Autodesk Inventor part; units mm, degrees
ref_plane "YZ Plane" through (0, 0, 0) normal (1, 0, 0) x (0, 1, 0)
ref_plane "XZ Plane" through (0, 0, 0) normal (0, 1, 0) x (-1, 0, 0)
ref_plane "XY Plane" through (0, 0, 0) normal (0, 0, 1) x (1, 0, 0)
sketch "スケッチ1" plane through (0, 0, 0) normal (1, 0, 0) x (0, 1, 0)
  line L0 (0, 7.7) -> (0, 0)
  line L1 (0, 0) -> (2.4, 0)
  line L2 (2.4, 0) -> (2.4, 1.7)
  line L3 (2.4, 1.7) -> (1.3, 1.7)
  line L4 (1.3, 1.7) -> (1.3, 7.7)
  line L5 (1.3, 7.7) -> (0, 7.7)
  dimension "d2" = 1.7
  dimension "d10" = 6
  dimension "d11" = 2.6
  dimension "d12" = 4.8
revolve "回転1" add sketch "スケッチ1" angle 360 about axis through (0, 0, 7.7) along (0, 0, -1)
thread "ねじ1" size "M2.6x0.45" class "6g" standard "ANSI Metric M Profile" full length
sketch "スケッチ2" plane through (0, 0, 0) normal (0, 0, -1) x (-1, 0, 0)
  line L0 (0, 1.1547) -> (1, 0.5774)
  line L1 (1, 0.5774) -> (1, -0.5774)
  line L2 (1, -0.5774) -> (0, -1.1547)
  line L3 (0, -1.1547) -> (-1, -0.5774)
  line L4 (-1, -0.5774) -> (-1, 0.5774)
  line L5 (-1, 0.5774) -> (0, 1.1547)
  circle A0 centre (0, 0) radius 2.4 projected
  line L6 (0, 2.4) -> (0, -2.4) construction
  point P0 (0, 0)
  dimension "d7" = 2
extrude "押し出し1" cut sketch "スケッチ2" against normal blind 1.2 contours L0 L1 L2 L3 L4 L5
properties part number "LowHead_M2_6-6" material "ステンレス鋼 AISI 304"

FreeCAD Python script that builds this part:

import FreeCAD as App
import Part
import Sketcher
from FreeCAD import Vector


def add_polygon(sketch, points):
    """Adds a closed chain of lines whose ends are joined by coincident constraints."""
    first, n = sketch.GeometryCount, len(points)
    for a, b in zip(points, points[1:] + points[:1]):
        sketch.addGeometry(Part.LineSegment(App.Vector(*a, 0), App.Vector(*b, 0)), False)
    for i in range(n):
        sketch.addConstraint(Sketcher.Constraint("Coincident", first + i, 2, first + (i + 1) % n, 1))

doc = App.newDocument("Part")
body = doc.addObject("PartDesign::Body", "Body")

# Sketch on YZ plane
sketch1 = body.newObject("Sketcher::SketchObject", "Sketch")
sketch1.AttachmentSupport = (doc.getObject("YZ_Plane"), [""])
sketch1.MapMode = "FlatFace"
add_polygon(sketch1, [(1.3, 7.7), (0, 7.7), (0, 0), (2.4, 0), (2.4, 1.7), (1.3, 1.7)])  # lines 0-5
sketch1.addConstraint([
    Sketcher.Constraint("Horizontal", 0),
    Sketcher.Constraint("Vertical", 1),
    Sketcher.Constraint("Horizontal", 2),
    Sketcher.Constraint("Vertical", 3),
    Sketcher.Constraint("Horizontal", 4),
    Sketcher.Constraint("Vertical", 5),
    Sketcher.Constraint("Coincident", 1, 2, -1, 1),
    Sketcher.Constraint("DistanceY", 5, 1, 5, 2, 6.0),
    Sketcher.Constraint("DistanceY", 3, 1, 3, 2, 1.7),
    Sketcher.Constraint("DistanceX", 0, 2, 0, 1, 1.3),
    Sketcher.Constraint("DistanceX", 2, 1, 2, 2, 2.4),
])
revolution = body.newObject("PartDesign::Revolution", "Revolution")
revolution.Profile = sketch1
revolution.ReferenceAxis = (sketch1, ["V_Axis"])
revolution.Angle = 360

# Sketch on XY plane
sketch2 = body.newObject("Sketcher::SketchObject", "Sketch001")
sketch2.AttachmentSupport = (doc.getObject("XY_Plane"), [""])
sketch2.MapMode = "FlatFace"
add_polygon(sketch2, [(-1, 0.6), (0, 1.2), (1, 0.6), (1, -0.6), (0, -1.2), (-1, -0.6)])  # lines 0-5
sketch2.addConstraint([
    Sketcher.Constraint("Vertical", 2),
    Sketcher.Constraint("Vertical", 5),
    Sketcher.Constraint("Symmetric", 0, 2, 3, 2, -1, 1),
    Sketcher.Constraint("Symmetric", 1, 2, 4, 2, -1, 1),
    Sketcher.Constraint("PointOnObject", 0, 2, -2),
    Sketcher.Constraint("Parallel", 0, 3),
    Sketcher.Constraint("Horizontal", 2, 2, 4, 2),
    Sketcher.Constraint("DistanceX", 4, 2, 2, 2, 2.0),
    Sketcher.Constraint("DistanceY", 2, 2, 2, 1, 1.1548),
    Sketcher.Constraint("DistanceY", 2, 2, 0, 2, 1.732),
])
pocket1 = body.newObject("PartDesign::Pocket", "Pocket")
pocket1.Profile = sketch2
pocket1.Length = 1.2
pocket1.Reversed = True

doc.recompute()
